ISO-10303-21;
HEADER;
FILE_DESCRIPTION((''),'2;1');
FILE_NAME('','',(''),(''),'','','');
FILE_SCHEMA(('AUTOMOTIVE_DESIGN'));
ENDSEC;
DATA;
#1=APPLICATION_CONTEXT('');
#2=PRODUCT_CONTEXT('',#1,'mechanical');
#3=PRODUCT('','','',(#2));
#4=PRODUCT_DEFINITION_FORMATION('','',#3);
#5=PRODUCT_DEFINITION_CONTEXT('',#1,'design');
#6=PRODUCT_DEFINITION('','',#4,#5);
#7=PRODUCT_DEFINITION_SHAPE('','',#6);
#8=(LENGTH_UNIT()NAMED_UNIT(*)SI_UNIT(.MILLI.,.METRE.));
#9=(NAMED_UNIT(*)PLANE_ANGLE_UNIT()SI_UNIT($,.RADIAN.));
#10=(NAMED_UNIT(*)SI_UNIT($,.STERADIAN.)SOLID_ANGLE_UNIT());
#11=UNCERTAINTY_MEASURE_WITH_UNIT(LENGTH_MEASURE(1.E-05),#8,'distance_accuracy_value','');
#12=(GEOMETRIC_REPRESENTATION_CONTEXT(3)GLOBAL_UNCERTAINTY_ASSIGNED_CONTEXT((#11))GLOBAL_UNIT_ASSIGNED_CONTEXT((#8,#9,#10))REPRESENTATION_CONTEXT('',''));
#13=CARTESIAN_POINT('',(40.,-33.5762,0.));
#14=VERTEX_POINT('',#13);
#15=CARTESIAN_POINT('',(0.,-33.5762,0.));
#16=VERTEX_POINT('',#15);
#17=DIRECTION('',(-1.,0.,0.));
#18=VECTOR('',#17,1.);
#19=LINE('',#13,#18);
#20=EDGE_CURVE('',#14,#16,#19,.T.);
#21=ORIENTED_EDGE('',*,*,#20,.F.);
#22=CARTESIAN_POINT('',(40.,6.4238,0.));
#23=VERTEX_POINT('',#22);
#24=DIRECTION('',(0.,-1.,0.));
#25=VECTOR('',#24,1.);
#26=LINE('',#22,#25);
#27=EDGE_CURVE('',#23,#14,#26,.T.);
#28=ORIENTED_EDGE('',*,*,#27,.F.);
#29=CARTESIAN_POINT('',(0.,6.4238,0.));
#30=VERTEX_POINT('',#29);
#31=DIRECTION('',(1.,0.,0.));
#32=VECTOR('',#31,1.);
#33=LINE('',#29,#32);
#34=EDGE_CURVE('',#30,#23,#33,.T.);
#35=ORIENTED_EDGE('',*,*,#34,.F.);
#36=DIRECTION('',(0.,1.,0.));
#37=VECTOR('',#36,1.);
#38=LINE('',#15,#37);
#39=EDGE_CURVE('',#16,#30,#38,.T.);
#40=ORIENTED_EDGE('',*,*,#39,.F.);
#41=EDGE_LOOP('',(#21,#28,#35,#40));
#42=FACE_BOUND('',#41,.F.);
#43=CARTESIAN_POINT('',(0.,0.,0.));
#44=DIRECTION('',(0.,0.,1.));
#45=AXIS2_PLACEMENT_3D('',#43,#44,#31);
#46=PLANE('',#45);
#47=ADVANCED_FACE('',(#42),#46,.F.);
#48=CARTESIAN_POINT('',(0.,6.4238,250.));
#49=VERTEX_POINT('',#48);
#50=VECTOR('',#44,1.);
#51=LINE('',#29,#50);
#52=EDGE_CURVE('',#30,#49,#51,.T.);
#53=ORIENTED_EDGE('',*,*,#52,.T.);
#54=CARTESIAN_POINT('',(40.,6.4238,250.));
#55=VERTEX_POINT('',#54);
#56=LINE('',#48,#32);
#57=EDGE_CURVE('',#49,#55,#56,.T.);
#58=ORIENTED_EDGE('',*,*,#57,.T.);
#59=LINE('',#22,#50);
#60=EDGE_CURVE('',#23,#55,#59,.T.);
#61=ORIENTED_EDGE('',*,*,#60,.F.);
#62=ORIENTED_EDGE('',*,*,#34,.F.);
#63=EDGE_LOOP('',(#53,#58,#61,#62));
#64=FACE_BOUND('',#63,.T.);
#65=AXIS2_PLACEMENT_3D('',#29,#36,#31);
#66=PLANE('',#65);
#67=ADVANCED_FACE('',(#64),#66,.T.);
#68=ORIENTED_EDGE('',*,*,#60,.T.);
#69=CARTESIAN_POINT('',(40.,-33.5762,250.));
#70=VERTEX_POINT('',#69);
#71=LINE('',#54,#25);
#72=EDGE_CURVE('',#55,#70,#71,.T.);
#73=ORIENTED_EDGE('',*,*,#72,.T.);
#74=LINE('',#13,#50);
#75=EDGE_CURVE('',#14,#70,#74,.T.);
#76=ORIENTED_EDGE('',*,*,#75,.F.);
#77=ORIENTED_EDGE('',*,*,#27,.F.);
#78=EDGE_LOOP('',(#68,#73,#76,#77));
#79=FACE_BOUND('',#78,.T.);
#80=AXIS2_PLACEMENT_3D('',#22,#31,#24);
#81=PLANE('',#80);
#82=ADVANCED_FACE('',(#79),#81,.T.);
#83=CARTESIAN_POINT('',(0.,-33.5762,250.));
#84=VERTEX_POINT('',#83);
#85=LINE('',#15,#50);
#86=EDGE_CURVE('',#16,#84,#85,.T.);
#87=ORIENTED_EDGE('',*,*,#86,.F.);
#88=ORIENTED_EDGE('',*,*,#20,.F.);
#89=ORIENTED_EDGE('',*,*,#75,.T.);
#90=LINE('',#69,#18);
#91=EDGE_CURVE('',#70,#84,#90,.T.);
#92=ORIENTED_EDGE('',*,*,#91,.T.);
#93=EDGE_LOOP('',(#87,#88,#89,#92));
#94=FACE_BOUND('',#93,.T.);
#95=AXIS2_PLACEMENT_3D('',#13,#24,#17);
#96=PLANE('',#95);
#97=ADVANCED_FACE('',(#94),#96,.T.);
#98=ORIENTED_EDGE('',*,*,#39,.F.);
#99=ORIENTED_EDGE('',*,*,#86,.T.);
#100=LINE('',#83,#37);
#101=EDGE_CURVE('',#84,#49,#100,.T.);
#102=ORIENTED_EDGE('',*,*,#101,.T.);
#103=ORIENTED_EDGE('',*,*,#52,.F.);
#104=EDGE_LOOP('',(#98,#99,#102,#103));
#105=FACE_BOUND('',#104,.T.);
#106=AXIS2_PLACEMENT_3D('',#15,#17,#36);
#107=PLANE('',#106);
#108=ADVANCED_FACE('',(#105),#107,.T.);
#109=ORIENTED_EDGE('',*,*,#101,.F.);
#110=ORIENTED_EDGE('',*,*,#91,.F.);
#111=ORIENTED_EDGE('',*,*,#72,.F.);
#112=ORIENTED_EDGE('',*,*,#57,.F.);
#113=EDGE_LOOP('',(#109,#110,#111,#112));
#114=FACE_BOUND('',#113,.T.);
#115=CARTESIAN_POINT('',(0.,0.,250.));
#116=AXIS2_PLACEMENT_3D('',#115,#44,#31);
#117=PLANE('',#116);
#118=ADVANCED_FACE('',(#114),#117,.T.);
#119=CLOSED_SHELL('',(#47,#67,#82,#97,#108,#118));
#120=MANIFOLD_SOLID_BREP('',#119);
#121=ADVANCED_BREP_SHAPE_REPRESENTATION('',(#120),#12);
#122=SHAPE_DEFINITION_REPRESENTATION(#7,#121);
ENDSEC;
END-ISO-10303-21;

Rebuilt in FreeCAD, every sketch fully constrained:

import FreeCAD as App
import Part
import Sketcher
Q = App.Units.Quantity

doc = App.newDocument("Part")
body = doc.addObject("PartDesign::Body", "Body")

# Sketch on XY plane
sketch1 = body.newObject("Sketcher::SketchObject", "Sketch")
sketch1.AttachmentSupport = (doc.getObject("XY_Plane"), [""])
sketch1.MapMode = "FlatFace"
sketch1.addGeometry([
    Part.LineSegment(App.Vector(40, 6.4238, 0), App.Vector(0, 6.4238, 0)),
    Part.LineSegment(App.Vector(0, 6.4238, 0), App.Vector(0, -33.5762, 0)),
    Part.LineSegment(App.Vector(0, -33.5762, 0), App.Vector(40, -33.5762, 0)),
    Part.LineSegment(App.Vector(40, -33.5762, 0), App.Vector(40, 6.4238, 0)),
], False)
sketch1.addConstraint([
    Sketcher.Constraint("Coincident", 0, 2, 1, 1),
    Sketcher.Constraint("Coincident", 1, 2, 2, 1),
    Sketcher.Constraint("Coincident", 2, 2, 3, 1),
    Sketcher.Constraint("Coincident", 3, 2, 0, 1),
    Sketcher.Constraint("Horizontal", 0),
    Sketcher.Constraint("Vertical", 1),
    Sketcher.Constraint("Horizontal", 2),
    Sketcher.Constraint("Vertical", 3),
    Sketcher.Constraint("PointOnObject", 0, 2, -2),
    Sketcher.Constraint("Equal", 2, 1),
    Sketcher.Constraint("DistanceX", 0, 2, 0, 1, Q("40 mm")),
    Sketcher.Constraint("DistanceY", -1, 1, 0, 2, Q("6.4238 mm")),
])
pad1 = body.newObject("PartDesign::Pad", "Pad")
pad1.Profile = sketch1
pad1.Length = 250

doc.recompute()
